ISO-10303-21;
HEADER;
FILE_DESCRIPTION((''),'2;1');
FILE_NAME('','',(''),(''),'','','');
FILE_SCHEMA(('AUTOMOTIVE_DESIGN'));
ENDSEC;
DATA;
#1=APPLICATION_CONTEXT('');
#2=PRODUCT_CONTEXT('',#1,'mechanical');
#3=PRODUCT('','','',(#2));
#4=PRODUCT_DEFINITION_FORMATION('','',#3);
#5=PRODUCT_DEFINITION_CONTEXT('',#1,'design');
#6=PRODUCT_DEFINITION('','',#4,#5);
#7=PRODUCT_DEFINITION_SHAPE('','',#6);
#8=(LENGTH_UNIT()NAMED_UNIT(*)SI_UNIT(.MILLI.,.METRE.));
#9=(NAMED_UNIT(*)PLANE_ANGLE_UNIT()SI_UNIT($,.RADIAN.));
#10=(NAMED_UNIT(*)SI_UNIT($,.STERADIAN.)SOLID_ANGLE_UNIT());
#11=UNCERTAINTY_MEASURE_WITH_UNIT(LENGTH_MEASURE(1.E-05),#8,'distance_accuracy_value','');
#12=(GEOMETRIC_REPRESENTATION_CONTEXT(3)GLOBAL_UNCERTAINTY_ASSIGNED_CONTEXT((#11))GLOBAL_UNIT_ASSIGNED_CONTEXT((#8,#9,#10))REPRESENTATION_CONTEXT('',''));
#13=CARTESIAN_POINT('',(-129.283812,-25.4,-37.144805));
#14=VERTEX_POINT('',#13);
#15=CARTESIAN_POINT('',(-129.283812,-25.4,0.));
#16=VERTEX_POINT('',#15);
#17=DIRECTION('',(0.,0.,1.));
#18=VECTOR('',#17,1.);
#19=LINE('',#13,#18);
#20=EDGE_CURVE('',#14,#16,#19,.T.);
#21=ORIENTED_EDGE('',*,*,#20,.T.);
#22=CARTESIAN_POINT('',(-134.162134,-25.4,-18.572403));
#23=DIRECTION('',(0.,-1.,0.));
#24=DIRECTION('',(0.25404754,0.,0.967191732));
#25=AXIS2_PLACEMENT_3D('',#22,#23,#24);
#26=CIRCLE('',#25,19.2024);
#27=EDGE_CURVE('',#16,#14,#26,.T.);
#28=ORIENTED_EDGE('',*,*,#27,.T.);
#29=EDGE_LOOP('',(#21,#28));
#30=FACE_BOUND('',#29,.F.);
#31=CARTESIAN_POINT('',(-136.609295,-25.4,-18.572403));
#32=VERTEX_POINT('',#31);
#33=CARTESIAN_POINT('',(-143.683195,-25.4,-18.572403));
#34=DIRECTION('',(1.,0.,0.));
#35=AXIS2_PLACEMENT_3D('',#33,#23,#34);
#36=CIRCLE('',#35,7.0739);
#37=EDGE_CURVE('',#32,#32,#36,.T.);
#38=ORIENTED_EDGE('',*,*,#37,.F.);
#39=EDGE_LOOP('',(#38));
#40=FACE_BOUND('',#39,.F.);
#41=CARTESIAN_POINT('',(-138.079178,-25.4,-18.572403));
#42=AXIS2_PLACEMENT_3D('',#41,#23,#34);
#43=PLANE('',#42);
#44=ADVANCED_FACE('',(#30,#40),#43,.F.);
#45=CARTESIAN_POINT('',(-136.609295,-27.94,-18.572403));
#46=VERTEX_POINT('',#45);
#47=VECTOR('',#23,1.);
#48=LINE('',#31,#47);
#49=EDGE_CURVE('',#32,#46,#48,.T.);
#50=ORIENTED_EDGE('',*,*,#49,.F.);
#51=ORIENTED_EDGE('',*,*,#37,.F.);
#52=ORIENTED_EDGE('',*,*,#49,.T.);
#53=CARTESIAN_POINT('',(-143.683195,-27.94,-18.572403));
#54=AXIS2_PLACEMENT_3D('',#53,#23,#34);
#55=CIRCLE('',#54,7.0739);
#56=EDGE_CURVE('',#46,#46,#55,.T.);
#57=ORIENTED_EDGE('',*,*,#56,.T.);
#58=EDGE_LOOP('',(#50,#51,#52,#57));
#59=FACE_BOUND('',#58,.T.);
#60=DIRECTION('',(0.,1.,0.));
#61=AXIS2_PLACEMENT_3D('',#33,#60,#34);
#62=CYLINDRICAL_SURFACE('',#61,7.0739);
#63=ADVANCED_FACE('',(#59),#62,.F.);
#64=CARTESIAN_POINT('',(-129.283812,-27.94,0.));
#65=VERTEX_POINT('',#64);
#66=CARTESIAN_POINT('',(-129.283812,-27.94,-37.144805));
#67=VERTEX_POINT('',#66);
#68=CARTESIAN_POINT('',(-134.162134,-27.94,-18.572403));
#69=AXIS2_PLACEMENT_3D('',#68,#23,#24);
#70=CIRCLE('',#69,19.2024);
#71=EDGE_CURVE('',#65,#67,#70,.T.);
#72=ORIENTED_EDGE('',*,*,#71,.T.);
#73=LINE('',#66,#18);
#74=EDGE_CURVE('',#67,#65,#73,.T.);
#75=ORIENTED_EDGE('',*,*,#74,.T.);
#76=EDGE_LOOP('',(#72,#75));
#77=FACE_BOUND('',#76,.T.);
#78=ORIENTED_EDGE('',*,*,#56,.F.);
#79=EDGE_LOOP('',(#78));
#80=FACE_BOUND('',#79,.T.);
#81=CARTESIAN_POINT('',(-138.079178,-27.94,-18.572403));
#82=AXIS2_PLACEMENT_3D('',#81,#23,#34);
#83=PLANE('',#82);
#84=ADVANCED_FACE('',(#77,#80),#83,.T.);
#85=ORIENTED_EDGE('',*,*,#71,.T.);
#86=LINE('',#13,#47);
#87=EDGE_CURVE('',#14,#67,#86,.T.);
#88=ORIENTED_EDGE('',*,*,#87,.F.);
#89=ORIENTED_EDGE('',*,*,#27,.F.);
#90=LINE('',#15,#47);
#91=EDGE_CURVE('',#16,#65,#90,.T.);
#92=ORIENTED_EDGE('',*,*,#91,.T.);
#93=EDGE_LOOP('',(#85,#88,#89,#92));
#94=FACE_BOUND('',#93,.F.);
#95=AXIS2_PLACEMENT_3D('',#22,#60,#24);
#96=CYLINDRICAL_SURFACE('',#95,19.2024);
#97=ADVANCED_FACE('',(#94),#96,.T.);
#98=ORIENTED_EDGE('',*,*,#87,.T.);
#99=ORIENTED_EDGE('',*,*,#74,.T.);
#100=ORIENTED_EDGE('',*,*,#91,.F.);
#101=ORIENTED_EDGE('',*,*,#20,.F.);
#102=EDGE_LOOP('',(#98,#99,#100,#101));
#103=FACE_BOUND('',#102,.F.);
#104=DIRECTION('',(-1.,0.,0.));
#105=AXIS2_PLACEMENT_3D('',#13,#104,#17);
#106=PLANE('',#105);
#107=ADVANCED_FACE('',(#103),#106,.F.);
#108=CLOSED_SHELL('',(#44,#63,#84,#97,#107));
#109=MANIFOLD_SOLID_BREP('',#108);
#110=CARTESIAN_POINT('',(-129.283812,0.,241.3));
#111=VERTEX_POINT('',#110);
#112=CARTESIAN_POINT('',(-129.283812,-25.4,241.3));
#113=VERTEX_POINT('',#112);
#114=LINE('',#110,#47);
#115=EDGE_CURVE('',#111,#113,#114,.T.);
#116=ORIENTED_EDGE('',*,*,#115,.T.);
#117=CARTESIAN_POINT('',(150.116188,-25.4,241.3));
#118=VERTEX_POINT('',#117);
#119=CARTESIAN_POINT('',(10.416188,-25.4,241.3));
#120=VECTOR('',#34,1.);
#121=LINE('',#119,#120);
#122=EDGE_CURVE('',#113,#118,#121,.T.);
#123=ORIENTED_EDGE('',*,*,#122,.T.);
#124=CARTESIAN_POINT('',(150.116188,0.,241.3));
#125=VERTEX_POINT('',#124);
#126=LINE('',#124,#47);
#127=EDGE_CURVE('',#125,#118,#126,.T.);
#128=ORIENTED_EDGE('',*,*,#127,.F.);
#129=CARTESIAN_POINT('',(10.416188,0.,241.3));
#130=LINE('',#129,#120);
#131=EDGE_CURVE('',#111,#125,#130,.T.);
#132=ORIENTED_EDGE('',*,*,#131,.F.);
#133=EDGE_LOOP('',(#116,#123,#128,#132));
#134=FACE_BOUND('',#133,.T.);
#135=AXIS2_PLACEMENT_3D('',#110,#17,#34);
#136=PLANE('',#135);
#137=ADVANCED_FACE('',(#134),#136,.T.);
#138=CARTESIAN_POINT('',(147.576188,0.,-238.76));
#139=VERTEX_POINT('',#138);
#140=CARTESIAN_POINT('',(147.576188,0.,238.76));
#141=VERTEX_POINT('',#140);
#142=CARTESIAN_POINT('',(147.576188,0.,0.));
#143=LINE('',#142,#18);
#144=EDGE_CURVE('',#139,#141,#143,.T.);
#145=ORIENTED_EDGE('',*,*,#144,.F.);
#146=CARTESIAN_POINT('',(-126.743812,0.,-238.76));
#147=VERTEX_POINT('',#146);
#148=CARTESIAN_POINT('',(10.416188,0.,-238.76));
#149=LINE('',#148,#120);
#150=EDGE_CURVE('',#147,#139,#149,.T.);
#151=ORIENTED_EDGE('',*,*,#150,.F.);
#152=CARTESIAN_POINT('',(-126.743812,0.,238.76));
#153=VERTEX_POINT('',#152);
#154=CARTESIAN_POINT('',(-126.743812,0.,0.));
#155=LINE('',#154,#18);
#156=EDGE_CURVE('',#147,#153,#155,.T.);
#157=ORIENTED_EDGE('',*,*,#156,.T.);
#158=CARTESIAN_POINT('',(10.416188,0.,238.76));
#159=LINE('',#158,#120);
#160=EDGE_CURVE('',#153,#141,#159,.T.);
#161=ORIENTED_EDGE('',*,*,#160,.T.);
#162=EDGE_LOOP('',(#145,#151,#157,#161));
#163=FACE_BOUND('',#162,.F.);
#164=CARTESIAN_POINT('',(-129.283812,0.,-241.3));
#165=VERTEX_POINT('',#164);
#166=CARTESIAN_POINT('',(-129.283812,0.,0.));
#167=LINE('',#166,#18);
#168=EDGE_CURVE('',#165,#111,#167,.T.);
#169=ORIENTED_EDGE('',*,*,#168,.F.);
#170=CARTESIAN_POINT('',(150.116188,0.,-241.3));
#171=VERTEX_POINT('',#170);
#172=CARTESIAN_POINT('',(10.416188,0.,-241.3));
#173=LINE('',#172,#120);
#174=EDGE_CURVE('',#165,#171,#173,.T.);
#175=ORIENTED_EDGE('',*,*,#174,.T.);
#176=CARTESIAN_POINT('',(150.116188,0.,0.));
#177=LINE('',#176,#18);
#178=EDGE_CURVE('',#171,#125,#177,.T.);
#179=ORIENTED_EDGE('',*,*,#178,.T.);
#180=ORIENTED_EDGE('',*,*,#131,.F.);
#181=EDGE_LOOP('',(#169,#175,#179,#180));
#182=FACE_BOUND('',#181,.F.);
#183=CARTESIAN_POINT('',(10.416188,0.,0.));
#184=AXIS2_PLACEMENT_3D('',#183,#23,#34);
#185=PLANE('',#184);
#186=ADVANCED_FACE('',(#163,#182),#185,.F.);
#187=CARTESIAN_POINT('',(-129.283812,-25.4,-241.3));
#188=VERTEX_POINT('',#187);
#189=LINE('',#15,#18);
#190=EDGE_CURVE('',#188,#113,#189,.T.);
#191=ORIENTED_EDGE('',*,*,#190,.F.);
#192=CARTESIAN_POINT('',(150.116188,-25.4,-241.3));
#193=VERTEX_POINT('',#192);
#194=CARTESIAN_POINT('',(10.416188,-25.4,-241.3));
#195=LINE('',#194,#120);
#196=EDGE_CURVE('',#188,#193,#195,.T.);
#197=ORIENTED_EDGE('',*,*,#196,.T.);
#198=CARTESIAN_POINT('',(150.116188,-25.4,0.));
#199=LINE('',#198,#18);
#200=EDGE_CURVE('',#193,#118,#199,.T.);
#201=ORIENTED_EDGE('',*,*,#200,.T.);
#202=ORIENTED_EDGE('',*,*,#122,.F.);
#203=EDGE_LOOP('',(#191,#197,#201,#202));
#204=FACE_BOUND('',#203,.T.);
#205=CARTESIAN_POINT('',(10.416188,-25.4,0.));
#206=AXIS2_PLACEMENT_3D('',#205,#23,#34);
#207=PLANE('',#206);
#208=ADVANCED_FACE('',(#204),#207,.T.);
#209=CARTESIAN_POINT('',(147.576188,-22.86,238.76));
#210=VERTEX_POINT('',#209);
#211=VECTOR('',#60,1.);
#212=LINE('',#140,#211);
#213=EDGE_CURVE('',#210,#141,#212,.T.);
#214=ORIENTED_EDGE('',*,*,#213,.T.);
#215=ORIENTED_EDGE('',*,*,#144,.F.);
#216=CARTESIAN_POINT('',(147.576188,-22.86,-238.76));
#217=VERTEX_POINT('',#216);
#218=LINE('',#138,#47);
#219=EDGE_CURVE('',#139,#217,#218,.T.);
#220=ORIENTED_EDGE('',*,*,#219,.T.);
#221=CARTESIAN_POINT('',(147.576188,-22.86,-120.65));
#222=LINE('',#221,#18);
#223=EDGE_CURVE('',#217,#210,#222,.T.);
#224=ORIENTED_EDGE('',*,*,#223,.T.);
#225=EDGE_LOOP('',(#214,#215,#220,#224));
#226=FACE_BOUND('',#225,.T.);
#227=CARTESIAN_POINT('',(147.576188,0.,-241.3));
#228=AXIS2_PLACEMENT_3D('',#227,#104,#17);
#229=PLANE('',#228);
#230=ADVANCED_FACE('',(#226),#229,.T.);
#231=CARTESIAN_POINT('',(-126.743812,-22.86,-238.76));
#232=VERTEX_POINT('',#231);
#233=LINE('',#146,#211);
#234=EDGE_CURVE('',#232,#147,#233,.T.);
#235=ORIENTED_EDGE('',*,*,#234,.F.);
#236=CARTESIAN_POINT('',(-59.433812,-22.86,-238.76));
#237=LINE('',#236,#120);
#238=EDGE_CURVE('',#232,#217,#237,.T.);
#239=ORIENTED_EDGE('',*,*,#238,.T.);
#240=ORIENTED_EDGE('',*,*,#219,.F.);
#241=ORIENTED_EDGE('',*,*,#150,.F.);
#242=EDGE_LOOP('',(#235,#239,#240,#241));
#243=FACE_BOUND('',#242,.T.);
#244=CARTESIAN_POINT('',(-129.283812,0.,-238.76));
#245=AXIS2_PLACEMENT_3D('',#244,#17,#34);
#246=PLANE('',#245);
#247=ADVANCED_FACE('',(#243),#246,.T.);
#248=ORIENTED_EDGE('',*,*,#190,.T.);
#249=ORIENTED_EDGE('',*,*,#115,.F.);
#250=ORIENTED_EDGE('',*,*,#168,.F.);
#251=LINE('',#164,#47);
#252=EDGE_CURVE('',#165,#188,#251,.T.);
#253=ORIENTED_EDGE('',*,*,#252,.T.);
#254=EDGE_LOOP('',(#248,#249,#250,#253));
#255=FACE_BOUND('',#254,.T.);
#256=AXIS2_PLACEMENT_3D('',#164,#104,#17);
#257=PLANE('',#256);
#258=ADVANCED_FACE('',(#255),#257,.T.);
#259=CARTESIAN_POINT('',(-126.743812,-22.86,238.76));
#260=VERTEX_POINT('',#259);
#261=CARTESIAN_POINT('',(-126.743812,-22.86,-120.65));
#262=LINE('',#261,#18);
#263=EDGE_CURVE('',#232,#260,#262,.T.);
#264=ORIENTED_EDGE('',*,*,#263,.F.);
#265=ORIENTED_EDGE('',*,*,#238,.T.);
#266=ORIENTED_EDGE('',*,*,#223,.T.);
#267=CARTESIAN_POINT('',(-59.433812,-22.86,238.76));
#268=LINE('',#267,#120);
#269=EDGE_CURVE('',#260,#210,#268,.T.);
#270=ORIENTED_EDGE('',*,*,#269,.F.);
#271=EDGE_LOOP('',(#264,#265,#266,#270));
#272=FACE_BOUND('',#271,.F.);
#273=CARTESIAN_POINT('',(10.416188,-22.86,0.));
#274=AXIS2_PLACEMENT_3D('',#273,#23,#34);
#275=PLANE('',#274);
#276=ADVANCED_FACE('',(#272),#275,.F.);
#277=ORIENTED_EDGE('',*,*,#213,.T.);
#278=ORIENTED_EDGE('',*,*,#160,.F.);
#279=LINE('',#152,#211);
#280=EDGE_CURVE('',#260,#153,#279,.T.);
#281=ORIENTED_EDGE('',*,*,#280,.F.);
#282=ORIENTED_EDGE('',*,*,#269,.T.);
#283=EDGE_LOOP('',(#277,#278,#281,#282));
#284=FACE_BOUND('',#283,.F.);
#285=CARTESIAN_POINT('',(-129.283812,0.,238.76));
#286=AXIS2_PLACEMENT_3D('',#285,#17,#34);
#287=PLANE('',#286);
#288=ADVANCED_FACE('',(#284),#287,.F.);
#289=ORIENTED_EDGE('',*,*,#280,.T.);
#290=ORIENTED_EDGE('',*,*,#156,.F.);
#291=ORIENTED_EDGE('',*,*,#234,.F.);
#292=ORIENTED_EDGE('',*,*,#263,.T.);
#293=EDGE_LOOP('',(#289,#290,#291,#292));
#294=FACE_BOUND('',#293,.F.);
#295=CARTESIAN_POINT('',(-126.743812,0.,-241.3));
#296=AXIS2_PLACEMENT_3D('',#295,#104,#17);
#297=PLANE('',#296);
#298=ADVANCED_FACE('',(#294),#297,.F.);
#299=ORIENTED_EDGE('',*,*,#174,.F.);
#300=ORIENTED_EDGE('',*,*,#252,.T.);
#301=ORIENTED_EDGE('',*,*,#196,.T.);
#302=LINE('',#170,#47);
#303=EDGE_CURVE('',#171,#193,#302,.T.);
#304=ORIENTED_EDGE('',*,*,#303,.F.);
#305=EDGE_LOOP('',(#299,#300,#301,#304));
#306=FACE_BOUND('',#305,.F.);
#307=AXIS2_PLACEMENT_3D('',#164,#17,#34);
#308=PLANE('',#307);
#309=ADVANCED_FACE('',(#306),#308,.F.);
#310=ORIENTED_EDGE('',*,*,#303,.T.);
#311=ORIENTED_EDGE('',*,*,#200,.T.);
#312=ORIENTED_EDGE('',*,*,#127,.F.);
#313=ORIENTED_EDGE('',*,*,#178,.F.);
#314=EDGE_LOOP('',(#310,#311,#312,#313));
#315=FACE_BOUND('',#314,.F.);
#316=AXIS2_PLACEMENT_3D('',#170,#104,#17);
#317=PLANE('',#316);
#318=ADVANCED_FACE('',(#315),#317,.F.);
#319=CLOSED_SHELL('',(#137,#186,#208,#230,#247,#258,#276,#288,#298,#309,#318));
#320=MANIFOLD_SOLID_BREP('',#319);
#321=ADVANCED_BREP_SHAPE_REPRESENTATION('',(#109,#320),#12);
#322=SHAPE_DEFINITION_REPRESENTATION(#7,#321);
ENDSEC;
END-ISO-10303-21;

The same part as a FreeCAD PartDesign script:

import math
import FreeCAD as App
import Part
import Sketcher

V = App.Vector
Q = App.Units.Quantity


def faces_at(feature, points):
    """Names of the faces that lie closest to the given points."""
    faces = feature.Shape.Faces
    near = lambda p: min(range(len(faces)), key=lambda i: faces[i].distToShape(Part.Vertex(*p))[0])
    return sorted({f"Face{near(p) + 1}" for p in points})

doc = App.newDocument("Part")
body = doc.addObject("PartDesign::Body", "Body")

# Sketch on XZ plane
sketch1 = body.newObject("Sketcher::SketchObject", "Sketch")
sketch1.AttachmentSupport = (doc.getObject("XZ_Plane"), [""])
sketch1.MapMode = "FlatFace"
sketch1.addGeometry([
    Part.LineSegment(V(-129, 241, 0), V(-129, -241, 0)),
    Part.LineSegment(V(-129, -241, 0), V(150, -241, 0)),
    Part.LineSegment(V(150, -241, 0), V(150, 241, 0)),
    Part.LineSegment(V(150, 241, 0), V(-129, 241, 0)),
], False)
sketch1.addConstraint([
    Sketcher.Constraint("Coincident", 0, 2, 1, 1),
    Sketcher.Constraint("Coincident", 1, 2, 2, 1),
    Sketcher.Constraint("Coincident", 2, 2, 3, 1),
    Sketcher.Constraint("Coincident", 3, 2, 0, 1),
    Sketcher.Constraint("Vertical", 0),
    Sketcher.Constraint("Horizontal", 1),
    Sketcher.Constraint("Vertical", 2),
    Sketcher.Constraint("Horizontal", 3),
    Sketcher.Constraint("DistanceX", 1, 1, 1, 2, Q("11 in")),
    Sketcher.Constraint("DistanceY", 0, 2, 0, 1, Q("19 in")),
    Sketcher.Constraint("DistanceY", 0, 2, -1, 1, Q("9.5 in")),
    Sketcher.Constraint("DistanceX", 0, 2, -1, 1, 129.283812),
])
pad1 = body.newObject("PartDesign::Pad", "Pad")
pad1.Profile = sketch1
pad1.Length = Q("1 in")
doc.recompute()

thickness = body.newObject("PartDesign::Thickness", "Thickness")
thickness.Base = (pad1, faces_at(pad1, [(10.416, 0, 0)]))
thickness.Value = Q("0.1 in")
thickness.Reversed = True
thickness.Join = "Arc"
body2 = doc.addObject("PartDesign::Body", "Body001")

# Sketch on XZ plane
sketch2 = body2.newObject("Sketcher::SketchObject", "Sketch001")
sketch2.AttachmentSupport = (doc.getObject("XZ_Plane001"), [""])
sketch2.MapMode = "FlatFace"
sketch2.AttachmentOffset = App.Placement(V(0, 0, 1 * 25.4), App.Rotation())
sketch2.addGeometry([
    Part.LineSegment(V(-129, -37, 0), V(-129, 0, 0)),
    Part.ArcOfCircle(Part.Circle(V(-134, -19, 0), V(0, 0, 1), 19), math.radians(75), math.radians(285)),
    Part.Circle(V(-144, -19, 0), V(0, 0, 1), 7),
], False)
sketch2.addConstraint([
    Sketcher.Constraint("Coincident", 0, 1, 1, 2),
    Sketcher.Constraint("Coincident", 1, 1, 0, 2),
    Sketcher.Constraint("Vertical", 0),
    Sketcher.Constraint("PointOnObject", 1, 1, -1),
    Sketcher.Constraint("Horizontal", 1, 3, 2, 3),
    Sketcher.Constraint("Diameter", 2, Q("0.557 in")),
    Sketcher.Constraint("Radius", 1, Q("0.756 in")),
    Sketcher.Constraint("DistanceY", 0, 1, 0, 2, 37.144805),
    Sketcher.Constraint("DistanceX", 0, 1, -1, 1, 129.283812),
    Sketcher.Constraint("DistanceX", 2, 3, 1, 3, 9.521061),
])
pad2 = body2.newObject("PartDesign::Pad", "Pad001")
pad2.Profile = sketch2
pad2.Length = Q("0.1 in")

doc.recompute()
